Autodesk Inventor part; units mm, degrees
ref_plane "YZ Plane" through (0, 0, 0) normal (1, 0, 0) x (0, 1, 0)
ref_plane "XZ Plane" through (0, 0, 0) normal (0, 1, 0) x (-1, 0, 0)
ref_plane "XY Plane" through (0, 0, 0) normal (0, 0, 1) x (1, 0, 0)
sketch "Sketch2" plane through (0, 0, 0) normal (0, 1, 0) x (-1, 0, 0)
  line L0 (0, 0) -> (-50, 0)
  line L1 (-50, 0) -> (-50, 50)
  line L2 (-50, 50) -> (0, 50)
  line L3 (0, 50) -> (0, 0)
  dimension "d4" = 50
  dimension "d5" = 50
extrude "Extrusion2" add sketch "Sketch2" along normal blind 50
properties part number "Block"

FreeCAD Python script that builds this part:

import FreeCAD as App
import Part
import Sketcher
Q = App.Units.Quantity

doc = App.newDocument("Part")
body = doc.addObject("PartDesign::Body", "Body")

# Sketch on XZ plane
sketch1 = doc.addObject("Sketcher::SketchObject", "Sketch")
body.addObject(sketch1)
sketch1.AttachmentSupport = (doc.XZ_Plane, [""])
sketch1.MapMode = "FlatFace"
sketch1.addGeometry(Part.LineSegment(App.Vector(50, 0, 0), App.Vector(0, 0, 0)), False)
sketch1.addGeometry(Part.LineSegment(App.Vector(0, 0, 0), App.Vector(0, 50, 0)), False)
sketch1.addGeometry(Part.LineSegment(App.Vector(0, 50, 0), App.Vector(50, 50, 0)), False)
sketch1.addGeometry(Part.LineSegment(App.Vector(50, 50, 0), App.Vector(50, 0, 0)), False)
sketch1.addConstraint(Sketcher.Constraint("Coincident", 0, 2, 1, 1))
sketch1.addConstraint(Sketcher.Constraint("Coincident", 1, 2, 2, 1))
sketch1.addConstraint(Sketcher.Constraint("Coincident", 2, 2, 3, 1))
sketch1.addConstraint(Sketcher.Constraint("Coincident", 3, 2, 0, 1))
sketch1.addConstraint(Sketcher.Constraint("Horizontal", 0))
sketch1.addConstraint(Sketcher.Constraint("Vertical", 1))
sketch1.addConstraint(Sketcher.Constraint("Horizontal", 2))
sketch1.addConstraint(Sketcher.Constraint("Vertical", 3))
sketch1.addConstraint(Sketcher.Constraint("Coincident", 0, 2, -1, 1))
sketch1.addConstraint(Sketcher.Constraint("Equal", 2, 1))
sketch1.addConstraint(Sketcher.Constraint("DistanceX", 0, 2, 0, 1, Q("50 mm")))
pad1 = doc.addObject("PartDesign::Pad", "Pad")
body.addObject(pad1)
pad1.Profile = sketch1
pad1.Length = 50
pad1.Reversed = True

doc.recompute()
